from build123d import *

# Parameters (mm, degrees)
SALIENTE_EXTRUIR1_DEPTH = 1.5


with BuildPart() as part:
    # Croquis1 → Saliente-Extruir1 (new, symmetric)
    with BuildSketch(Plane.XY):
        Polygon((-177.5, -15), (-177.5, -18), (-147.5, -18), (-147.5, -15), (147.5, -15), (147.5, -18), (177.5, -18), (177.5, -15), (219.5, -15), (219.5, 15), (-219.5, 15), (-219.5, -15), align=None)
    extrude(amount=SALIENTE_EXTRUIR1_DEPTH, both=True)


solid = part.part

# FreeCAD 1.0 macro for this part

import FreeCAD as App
import Part
import Sketcher
from FreeCAD import Vector
Q = App.Units.Quantity

doc = App.newDocument("Part")
body = doc.addObject("PartDesign::Body", "Body")

sketch1 = body.newObject("Sketcher::SketchObject", "Sketch")
sketch1.AttachmentSupport = (doc.getObject("XY_Plane"), [""])
sketch1.MapMode = "FlatFace"
sketch1.addGeometry(Part.LineSegment(Vector(-177.5, -15, 0), Vector(-177.5, -18, 0)), False)
sketch1.addGeometry(Part.LineSegment(Vector(-177.5, -18, 0), Vector(-147.5, -18, 0)), False)
sketch1.addGeometry(Part.LineSegment(Vector(-147.5, -18, 0), Vector(-147.5, -15, 0)), False)
sketch1.addGeometry(Part.LineSegment(Vector(-147.5, -15, 0), Vector(147.5, -15, 0)), False)
sketch1.addGeometry(Part.LineSegment(Vector(147.5, -15, 0), Vector(147.5, -18, 0)), False)
sketch1.addGeometry(Part.LineSegment(Vector(147.5, -18, 0), Vector(177.5, -18, 0)), False)
sketch1.addGeometry(Part.LineSegment(Vector(177.5, -18, 0), Vector(177.5, -15, 0)), False)
sketch1.addGeometry(Part.LineSegment(Vector(177.5, -15, 0), Vector(219.5, -15, 0)), False)
sketch1.addGeometry(Part.LineSegment(Vector(219.5, -15, 0), Vector(219.5, 15, 0)), False)
sketch1.addGeometry(Part.LineSegment(Vector(219.5, 15, 0), Vector(-219.5, 15, 0)), False)
sketch1.addGeometry(Part.LineSegment(Vector(-219.5, 15, 0), Vector(-219.5, -15, 0)), False)
sketch1.addGeometry(Part.LineSegment(Vector(-219.5, -15, 0), Vector(-177.5, -15, 0)), False)
sketch1.addConstraint(Sketcher.Constraint("Coincident", 0, 2, 1, 1))
sketch1.addConstraint(Sketcher.Constraint("Coincident", 1, 2, 2, 1))
sketch1.addConstraint(Sketcher.Constraint("Coincident", 2, 2, 3, 1))
sketch1.addConstraint(Sketcher.Constraint("Coincident", 3, 2, 4, 1))
sketch1.addConstraint(Sketcher.Constraint("Coincident", 4, 2, 5, 1))
sketch1.addConstraint(Sketcher.Constraint("Coincident", 5, 2, 6, 1))
sketch1.addConstraint(Sketcher.Constraint("Coincident", 6, 2, 7, 1))
sketch1.addConstraint(Sketcher.Constraint("Coincident", 7, 2, 8, 1))
sketch1.addConstraint(Sketcher.Constraint("Coincident", 8, 2, 9, 1))
sketch1.addConstraint(Sketcher.Constraint("Coincident", 9, 2, 10, 1))
sketch1.addConstraint(Sketcher.Constraint("Coincident", 10, 2, 11, 1))
sketch1.addConstraint(Sketcher.Constraint("Coincident", 11, 2, 0, 1))
sketch1.addConstraint(Sketcher.Constraint("Vertical", 0))
sketch1.addConstraint(Sketcher.Constraint("Horizontal", 1))
sketch1.addConstraint(Sketcher.Constraint("Vertical", 2))
sketch1.addConstraint(Sketcher.Constraint("Horizontal", 3))
sketch1.addConstraint(Sketcher.Constraint("Vertical", 4))
sketch1.addConstraint(Sketcher.Constraint("Horizontal", 5))
sketch1.addConstraint(Sketcher.Constraint("Vertical", 6))
sketch1.addConstraint(Sketcher.Constraint("Horizontal", 7))
sketch1.addConstraint(Sketcher.Constraint("Vertical", 8))
sketch1.addConstraint(Sketcher.Constraint("Horizontal", 9))
sketch1.addConstraint(Sketcher.Constraint("Vertical", 10))
sketch1.addConstraint(Sketcher.Constraint("Horizontal", 11))
sketch1.addConstraint(Sketcher.Constraint("Symmetric", 7, 2, 9, 2, -1, 1))
sketch1.addConstraint(Sketcher.Constraint("Symmetric", 1, 2, 4, 2, -2))
sketch1.addConstraint(Sketcher.Constraint("Symmetric", 6, 2, 11, 2, -2))
sketch1.addConstraint(Sketcher.Constraint("Horizontal", 3, 2, 6, 2))
sketch1.addConstraint(Sketcher.Constraint("Equal", 5, 8))
sketch1.addConstraint(Sketcher.Constraint("DistanceX", 1, 1, 1, 2, Q("30 mm")))
sketch1.addConstraint(Sketcher.Constraint("DistanceX", 3, 1, 3, 2, Q("295 mm")))
sketch1.addConstraint(Sketcher.Constraint("DistanceX", 7, 1, 7, 2, Q("42 mm")))
sketch1.addConstraint(Sketcher.Constraint("DistanceY", 0, 2, 0, 1, Q("3 mm")))
pad1 = body.newObject("PartDesign::Pad", "Pad")
pad1.Profile = sketch1
pad1.Length = 3
pad1.Midplane = True

doc.recompute()
